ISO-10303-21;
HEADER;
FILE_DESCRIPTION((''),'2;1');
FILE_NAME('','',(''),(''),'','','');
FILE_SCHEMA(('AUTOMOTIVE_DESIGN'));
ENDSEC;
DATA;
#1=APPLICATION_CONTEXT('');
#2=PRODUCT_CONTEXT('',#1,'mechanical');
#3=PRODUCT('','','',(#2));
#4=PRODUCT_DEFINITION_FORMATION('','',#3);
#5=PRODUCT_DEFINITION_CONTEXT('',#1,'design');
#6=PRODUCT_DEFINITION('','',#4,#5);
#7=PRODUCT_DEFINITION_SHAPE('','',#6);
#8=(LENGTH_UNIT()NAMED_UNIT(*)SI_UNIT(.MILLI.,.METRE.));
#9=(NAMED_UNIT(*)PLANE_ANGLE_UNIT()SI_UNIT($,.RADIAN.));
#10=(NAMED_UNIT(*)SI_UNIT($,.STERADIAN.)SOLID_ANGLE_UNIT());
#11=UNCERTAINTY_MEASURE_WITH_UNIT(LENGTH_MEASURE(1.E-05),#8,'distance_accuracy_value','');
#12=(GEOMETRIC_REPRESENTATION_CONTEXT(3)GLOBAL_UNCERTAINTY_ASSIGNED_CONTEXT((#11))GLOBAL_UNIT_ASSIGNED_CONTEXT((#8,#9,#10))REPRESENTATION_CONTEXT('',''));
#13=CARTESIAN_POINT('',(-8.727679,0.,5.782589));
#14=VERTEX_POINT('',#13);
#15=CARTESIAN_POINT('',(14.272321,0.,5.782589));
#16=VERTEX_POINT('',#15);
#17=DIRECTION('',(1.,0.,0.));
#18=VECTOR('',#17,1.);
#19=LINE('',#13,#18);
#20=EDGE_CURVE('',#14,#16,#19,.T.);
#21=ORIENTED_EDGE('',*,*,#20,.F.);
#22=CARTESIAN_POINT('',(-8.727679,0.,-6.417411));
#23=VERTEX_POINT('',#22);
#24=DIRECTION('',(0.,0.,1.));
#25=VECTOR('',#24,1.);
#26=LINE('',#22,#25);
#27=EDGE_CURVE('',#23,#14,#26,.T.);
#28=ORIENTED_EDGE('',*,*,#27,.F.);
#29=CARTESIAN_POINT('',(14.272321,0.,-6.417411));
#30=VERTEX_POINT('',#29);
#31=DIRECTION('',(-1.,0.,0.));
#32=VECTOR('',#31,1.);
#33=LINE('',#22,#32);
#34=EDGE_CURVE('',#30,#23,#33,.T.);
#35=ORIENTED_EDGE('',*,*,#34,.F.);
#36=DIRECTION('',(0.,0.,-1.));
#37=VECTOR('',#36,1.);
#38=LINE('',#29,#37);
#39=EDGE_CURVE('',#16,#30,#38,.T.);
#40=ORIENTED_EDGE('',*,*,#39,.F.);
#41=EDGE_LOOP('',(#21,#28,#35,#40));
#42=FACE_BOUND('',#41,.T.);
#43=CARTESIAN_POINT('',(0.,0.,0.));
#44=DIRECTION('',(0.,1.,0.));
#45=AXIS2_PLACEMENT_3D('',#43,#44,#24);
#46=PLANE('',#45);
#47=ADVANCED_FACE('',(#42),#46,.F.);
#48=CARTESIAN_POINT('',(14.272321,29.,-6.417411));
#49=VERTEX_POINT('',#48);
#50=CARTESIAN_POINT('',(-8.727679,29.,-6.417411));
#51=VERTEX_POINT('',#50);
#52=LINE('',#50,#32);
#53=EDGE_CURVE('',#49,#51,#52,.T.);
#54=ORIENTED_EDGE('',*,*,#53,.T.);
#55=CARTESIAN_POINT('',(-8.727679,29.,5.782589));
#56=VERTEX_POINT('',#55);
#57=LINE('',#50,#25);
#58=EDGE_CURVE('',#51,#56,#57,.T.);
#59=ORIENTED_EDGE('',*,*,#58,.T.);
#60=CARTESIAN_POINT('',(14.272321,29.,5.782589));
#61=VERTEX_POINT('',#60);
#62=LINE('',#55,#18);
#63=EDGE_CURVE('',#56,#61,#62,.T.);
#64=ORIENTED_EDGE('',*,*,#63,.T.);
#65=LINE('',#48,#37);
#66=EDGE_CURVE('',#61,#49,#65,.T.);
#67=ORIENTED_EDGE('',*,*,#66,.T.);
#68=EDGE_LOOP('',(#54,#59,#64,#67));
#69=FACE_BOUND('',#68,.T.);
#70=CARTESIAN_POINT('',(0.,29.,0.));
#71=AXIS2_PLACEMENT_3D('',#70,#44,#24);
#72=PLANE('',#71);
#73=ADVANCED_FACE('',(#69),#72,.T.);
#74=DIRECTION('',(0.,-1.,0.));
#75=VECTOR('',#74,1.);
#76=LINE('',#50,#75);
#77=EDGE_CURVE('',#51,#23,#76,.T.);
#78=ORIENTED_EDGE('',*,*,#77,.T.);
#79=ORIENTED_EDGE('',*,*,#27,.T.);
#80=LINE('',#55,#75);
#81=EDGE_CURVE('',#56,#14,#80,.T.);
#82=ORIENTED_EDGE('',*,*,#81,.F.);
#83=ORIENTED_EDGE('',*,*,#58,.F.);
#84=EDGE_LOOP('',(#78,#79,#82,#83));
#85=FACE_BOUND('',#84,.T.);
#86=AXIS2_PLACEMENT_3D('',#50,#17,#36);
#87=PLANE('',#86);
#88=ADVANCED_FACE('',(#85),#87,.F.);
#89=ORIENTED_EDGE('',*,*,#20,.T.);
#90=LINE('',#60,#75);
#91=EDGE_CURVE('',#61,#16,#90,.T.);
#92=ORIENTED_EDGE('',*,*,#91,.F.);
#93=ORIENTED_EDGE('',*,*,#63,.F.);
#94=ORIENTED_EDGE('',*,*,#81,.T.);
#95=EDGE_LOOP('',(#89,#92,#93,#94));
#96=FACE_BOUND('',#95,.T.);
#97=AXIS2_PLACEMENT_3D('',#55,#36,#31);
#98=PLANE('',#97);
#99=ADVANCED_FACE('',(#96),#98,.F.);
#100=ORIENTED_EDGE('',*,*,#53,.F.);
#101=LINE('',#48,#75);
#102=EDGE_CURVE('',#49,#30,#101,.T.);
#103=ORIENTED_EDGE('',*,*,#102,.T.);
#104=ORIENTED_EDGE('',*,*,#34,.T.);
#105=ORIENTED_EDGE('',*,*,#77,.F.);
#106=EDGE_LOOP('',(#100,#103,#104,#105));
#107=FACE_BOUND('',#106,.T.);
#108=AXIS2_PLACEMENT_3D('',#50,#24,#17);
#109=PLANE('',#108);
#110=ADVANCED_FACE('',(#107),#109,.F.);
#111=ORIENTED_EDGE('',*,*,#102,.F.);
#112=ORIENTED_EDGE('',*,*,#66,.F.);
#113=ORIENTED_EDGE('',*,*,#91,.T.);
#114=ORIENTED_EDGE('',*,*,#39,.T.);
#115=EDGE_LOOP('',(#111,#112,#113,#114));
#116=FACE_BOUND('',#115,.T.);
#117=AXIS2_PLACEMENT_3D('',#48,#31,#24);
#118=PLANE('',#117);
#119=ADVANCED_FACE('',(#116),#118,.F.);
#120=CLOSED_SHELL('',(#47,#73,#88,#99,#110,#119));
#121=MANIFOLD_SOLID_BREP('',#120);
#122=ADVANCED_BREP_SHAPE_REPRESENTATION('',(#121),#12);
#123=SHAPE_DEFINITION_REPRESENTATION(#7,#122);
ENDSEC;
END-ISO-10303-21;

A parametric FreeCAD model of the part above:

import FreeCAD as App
import Part
import Sketcher

V = App.Vector


def add_polygon(sketch, points):
    """Adds a closed chain of lines whose ends are joined by coincident constraints."""
    first, n = sketch.GeometryCount, len(points)
    for a, b in zip(points, points[1:] + points[:1]):
        sketch.addGeometry(Part.LineSegment(App.Vector(*a, 0), App.Vector(*b, 0)), False)
    for i in range(n):
        sketch.addConstraint(Sketcher.Constraint("Coincident", first + i, 2, first + (i + 1) % n, 1))

doc = App.newDocument("Part")
body = doc.addObject("PartDesign::Body", "Body")

# Sketch on XZ plane
sketch1 = body.newObject("Sketcher::SketchObject", "Sketch")
sketch1.AttachmentSupport = (doc.getObject("XZ_Plane"), [""])
sketch1.MapMode = "FlatFace"
add_polygon(sketch1, [(-9, -6), (-9, 6), (14, 6), (14, -6)])  # lines 0-3
sketch1.addConstraint(Sketcher.Constraint("Vertical", 0))
sketch1.addConstraint(Sketcher.Constraint("Horizontal", 1))
sketch1.addConstraint(Sketcher.Constraint("Vertical", 2))
sketch1.addConstraint(Sketcher.Constraint("Horizontal", 3))
sketch1.addConstraint(Sketcher.Constraint("DistanceX", 1, 1, 1, 2, 23.0))
sketch1.addConstraint(Sketcher.Constraint("DistanceY", 0, 1, 0, 2, 12.2))
sketch1.addConstraint(Sketcher.Constraint("DistanceX", 0, 2, -1, 1, 8.727679))
sketch1.addConstraint(Sketcher.Constraint("DistanceY", -1, 1, 0, 2, 5.782589))
pad1 = body.newObject("PartDesign::Pad", "Pad")
pad1.Profile = sketch1
pad1.Length = 29
pad1.Reversed = True

doc.recompute()
